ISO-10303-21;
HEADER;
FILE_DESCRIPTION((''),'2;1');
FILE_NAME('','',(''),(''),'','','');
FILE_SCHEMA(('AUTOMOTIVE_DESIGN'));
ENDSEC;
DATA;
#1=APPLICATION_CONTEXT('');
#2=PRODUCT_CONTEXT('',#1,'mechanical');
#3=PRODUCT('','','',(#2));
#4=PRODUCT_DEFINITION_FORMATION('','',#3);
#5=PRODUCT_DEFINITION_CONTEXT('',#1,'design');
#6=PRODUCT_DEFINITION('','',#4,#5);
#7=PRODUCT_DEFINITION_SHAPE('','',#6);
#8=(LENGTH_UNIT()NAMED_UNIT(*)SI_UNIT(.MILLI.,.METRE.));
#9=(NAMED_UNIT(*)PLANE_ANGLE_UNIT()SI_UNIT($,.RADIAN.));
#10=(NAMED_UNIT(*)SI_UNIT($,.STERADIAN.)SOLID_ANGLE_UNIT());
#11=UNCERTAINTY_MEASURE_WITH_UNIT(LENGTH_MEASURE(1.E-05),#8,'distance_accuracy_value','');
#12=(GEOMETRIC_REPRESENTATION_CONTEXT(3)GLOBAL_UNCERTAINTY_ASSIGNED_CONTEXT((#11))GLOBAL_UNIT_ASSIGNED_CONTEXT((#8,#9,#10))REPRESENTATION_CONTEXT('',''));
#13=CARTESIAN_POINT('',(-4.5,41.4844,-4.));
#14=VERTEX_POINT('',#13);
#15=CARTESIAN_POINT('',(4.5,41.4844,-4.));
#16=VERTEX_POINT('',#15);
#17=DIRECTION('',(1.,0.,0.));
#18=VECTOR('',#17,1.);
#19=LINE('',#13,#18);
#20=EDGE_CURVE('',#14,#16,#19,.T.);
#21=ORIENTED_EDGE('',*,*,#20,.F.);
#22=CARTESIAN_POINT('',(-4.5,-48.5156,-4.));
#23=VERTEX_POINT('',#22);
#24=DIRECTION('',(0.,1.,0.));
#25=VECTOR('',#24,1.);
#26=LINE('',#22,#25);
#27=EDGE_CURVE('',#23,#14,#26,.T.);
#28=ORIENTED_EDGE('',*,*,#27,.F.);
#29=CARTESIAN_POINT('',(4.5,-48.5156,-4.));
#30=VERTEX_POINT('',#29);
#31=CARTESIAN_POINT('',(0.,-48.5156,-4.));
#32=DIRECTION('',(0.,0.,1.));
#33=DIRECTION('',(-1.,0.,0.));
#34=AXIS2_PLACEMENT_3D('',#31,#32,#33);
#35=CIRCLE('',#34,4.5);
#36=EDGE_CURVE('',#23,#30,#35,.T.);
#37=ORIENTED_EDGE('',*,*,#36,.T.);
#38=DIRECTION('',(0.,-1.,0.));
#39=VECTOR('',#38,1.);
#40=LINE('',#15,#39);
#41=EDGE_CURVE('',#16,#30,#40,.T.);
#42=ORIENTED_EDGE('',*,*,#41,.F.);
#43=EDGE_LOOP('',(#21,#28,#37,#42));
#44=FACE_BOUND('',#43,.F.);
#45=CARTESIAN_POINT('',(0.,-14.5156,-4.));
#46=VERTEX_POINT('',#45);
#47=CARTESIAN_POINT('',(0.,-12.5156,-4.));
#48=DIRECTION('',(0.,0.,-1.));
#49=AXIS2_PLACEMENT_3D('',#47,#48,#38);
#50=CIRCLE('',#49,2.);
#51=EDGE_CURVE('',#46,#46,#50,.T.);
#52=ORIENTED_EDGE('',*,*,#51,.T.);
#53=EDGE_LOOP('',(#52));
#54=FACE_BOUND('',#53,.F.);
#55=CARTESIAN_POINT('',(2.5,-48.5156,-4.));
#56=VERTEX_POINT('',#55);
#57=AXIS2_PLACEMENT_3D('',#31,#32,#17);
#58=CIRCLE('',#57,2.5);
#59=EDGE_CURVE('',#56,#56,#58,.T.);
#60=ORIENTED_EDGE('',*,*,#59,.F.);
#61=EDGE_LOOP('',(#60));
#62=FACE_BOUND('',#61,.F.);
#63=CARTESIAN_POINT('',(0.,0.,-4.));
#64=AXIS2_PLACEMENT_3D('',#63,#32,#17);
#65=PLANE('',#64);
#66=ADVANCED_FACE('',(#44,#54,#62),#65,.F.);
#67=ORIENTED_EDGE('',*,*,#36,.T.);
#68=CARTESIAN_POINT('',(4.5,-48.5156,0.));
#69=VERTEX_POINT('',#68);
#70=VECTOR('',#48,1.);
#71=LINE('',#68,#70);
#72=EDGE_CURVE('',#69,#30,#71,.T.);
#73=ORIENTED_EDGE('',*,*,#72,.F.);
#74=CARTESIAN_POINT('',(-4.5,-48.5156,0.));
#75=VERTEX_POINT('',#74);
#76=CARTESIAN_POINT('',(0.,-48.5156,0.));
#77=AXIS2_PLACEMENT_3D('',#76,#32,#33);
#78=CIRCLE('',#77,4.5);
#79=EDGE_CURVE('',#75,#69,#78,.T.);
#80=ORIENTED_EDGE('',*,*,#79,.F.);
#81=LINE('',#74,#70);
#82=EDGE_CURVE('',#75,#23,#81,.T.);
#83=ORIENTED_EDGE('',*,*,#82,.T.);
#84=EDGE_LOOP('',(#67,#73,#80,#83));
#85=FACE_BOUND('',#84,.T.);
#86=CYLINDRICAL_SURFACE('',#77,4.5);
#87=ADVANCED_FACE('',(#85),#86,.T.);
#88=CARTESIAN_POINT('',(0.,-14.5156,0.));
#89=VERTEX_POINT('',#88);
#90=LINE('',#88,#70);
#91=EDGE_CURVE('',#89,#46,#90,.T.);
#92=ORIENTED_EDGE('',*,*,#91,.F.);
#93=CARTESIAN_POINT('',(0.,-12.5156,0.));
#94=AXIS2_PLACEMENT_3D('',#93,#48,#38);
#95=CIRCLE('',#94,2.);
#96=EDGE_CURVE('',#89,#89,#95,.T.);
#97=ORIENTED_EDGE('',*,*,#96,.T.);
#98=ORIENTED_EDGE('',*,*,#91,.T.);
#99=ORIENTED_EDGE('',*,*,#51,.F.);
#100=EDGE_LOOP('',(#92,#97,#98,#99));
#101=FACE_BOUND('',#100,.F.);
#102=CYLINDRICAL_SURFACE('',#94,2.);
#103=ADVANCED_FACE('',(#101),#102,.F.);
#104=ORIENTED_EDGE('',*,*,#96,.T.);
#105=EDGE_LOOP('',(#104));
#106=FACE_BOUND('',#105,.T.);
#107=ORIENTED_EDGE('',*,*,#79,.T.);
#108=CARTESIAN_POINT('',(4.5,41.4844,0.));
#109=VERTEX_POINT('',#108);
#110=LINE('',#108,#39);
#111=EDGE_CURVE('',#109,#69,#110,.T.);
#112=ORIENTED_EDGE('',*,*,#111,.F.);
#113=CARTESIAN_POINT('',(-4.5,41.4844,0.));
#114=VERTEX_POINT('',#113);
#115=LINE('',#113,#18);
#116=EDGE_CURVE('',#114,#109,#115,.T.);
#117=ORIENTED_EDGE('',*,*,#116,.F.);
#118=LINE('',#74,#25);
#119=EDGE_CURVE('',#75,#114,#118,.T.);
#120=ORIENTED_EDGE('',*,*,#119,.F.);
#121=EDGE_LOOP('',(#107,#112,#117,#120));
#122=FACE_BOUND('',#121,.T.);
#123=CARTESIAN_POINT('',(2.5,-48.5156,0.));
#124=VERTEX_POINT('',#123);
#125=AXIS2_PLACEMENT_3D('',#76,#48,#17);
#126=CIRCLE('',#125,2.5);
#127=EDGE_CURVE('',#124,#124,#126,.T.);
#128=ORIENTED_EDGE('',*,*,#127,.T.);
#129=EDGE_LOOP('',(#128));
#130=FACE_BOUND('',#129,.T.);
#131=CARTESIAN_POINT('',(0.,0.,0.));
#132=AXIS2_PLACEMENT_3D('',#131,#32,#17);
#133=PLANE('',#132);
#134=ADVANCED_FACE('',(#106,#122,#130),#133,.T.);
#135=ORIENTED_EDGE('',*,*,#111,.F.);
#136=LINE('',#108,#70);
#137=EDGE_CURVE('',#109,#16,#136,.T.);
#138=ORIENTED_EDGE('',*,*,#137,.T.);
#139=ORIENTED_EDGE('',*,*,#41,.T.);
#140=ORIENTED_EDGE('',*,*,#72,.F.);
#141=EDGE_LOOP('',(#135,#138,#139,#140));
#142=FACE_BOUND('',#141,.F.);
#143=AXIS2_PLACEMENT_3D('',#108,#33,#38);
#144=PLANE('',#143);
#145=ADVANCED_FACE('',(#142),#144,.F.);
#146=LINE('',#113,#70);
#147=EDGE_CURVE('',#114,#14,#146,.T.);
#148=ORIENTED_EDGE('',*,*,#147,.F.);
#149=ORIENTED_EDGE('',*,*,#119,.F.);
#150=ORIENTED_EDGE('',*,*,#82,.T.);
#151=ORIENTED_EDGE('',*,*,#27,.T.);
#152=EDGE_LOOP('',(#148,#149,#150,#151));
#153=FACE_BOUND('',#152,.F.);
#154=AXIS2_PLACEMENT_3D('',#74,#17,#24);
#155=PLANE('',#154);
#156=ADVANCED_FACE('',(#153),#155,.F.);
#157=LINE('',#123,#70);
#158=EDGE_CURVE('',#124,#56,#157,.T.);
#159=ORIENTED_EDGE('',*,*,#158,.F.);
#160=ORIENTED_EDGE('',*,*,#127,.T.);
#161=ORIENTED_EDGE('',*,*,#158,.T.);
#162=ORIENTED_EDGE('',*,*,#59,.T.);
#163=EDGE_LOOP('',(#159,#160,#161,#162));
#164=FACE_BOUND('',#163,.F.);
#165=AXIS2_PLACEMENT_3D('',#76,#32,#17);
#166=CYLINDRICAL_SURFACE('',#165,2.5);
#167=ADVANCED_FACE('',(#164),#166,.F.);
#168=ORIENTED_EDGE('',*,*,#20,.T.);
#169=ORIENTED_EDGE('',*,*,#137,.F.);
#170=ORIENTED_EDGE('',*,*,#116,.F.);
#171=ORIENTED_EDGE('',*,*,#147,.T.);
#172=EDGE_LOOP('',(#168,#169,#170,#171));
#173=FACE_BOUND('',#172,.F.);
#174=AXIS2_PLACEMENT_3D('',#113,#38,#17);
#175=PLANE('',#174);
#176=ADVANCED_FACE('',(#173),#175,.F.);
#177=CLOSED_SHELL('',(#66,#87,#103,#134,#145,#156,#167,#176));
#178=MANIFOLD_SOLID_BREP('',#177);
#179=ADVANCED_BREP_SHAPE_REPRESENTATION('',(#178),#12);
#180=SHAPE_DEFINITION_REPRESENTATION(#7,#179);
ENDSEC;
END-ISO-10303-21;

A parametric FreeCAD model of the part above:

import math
import FreeCAD as App
import Part
import Sketcher
Q = App.Units.Quantity

doc = App.newDocument("Part")
body = doc.addObject("PartDesign::Body", "Body")

sketch1 = body.newObject("Sketcher::SketchObject", "Sketch")
sketch1.AttachmentSupport = (doc.getObject("XY_Plane"), [""])
sketch1.MapMode = "FlatFace"
sketch1.addGeometry(Part.LineSegment(App.Vector(4.5, 41.5, 0), App.Vector(-4.5, 41.5, 0)), False)
sketch1.addGeometry(Part.LineSegment(App.Vector(-4.5, 41.5, 0), App.Vector(-4.5, -48.5, 0)), False)
sketch1.addGeometry(Part.ArcOfCircle(Part.Circle(App.Vector(0, -48.5, 0), App.Vector(0, 0, 1), 4.5), math.radians(180), math.radians(360)), False)
sketch1.addGeometry(Part.LineSegment(App.Vector(4.5, -48.5, 0), App.Vector(4.5, 41.5, 0)), False)
sketch1.addGeometry(Part.Circle(App.Vector(0, -48.5, 0), App.Vector(0, 0, 1), 2.5), False)
sketch1.addConstraint(Sketcher.Constraint("Coincident", 0, 2, 1, 1))
sketch1.addConstraint(Sketcher.Constraint("Tangent", 1, 2, 2, 1))
sketch1.addConstraint(Sketcher.Constraint("Tangent", 2, 2, 3, 1))
sketch1.addConstraint(Sketcher.Constraint("Coincident", 3, 2, 0, 1))
sketch1.addConstraint(Sketcher.Constraint("Horizontal", 0))
sketch1.addConstraint(Sketcher.Constraint("Vertical", 1))
sketch1.addConstraint(Sketcher.Constraint("Vertical", 3))
sketch1.addConstraint(Sketcher.Constraint("Coincident", 4, 3, 2, 3))
sketch1.addConstraint(Sketcher.Constraint("PointOnObject", 2, 3, -2))
sketch1.addConstraint(Sketcher.Constraint("Diameter", 4, Q("5 mm")))
sketch1.addConstraint(Sketcher.Constraint("Radius", 2, Q("4.5 mm")))
sketch1.addConstraint(Sketcher.Constraint("DistanceY", 1, 2, 1, 1, Q("90 mm")))
sketch1.addConstraint(Sketcher.Constraint("DistanceY", -1, 1, 0, 2, Q("41.4844 mm")))
pad1 = body.newObject("PartDesign::Pad", "Pad")
pad1.Profile = sketch1
pad1.Length = 4
pad1.Reversed = True

sketch2 = body.newObject("Sketcher::SketchObject", "Sketch001")
sketch2.AttachmentSupport = (doc.getObject("XY_Plane"), [""])
sketch2.MapMode = "FlatFace"
sketch2.addGeometry(Part.Circle(App.Vector(0, -12.5, 0), App.Vector(0, 0, 1), 2), False)
sketch2.addConstraint(Sketcher.Constraint("PointOnObject", 0, 3, -2))
sketch2.addConstraint(Sketcher.Constraint("Diameter", 0, Q("4 mm")))
sketch2.addConstraint(Sketcher.Constraint("DistanceY", 0, 3, -1, 1, Q("12.5156 mm")))
doc.recompute()
hole = body.newObject("PartDesign::Hole", "Hole")
hole.Profile = sketch2
hole.ThreadType = "None"
hole.Diameter = 4
hole.DepthType = "ThroughAll"

doc.recompute()
